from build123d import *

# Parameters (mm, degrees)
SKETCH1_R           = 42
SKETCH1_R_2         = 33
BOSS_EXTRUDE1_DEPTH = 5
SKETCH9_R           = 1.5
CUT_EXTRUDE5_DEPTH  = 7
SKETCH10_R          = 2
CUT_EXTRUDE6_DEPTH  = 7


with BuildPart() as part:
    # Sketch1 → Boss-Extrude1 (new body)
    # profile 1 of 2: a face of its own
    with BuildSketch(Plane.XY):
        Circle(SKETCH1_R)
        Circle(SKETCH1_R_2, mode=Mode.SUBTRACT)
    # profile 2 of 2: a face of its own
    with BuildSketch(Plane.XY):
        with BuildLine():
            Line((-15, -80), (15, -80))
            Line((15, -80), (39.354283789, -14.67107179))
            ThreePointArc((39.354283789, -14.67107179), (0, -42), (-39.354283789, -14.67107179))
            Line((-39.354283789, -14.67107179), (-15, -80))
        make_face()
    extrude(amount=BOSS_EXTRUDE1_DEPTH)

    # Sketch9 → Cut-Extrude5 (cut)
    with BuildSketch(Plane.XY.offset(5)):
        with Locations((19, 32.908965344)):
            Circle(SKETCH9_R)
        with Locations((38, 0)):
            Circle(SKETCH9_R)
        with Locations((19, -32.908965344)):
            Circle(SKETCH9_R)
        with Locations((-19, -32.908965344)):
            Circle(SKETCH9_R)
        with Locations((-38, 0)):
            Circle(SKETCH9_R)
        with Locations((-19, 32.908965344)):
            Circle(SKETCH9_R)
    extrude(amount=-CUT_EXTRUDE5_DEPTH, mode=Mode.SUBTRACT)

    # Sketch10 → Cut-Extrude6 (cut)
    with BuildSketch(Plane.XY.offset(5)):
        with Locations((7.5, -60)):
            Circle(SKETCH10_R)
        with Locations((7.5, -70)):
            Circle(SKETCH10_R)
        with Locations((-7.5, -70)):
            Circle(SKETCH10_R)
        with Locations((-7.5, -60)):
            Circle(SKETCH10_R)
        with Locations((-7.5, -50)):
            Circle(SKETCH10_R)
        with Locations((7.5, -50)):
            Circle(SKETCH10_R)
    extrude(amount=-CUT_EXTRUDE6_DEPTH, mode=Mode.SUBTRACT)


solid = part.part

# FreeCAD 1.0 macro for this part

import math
import FreeCAD as App
import Part
import Sketcher

V = App.Vector
Q = App.Units.Quantity

doc = App.newDocument("Part")
body = doc.addObject("PartDesign::Body", "Body")

# Sketch on XY plane
sketch1 = body.newObject("Sketcher::SketchObject", "Sketch")
sketch1.AttachmentSupport = (doc.getObject("XY_Plane"), [""])
sketch1.MapMode = "FlatFace"
sketch1.addGeometry([
    Part.LineSegment(V(-39, -15, 0), V(-15, -80, 0)),  # 0
    Part.LineSegment(V(-15, -80, 0), V(15, -80, 0)),  # 1
    Part.LineSegment(V(15, -80, 0), V(39, -15, 0)),  # 2
    Part.ArcOfCircle(Part.Circle(V(0, 0, 0), V(0, 0, 1), 42), math.radians(-20), math.radians(200)),  # 3
    Part.Circle(V(0, 0, 0), V(0, 0, 1), 33),  # 4
], False)
sketch1.addConstraint([
    Sketcher.Constraint("Coincident", 0, 2, 1, 1),
    Sketcher.Constraint("Coincident", 1, 2, 2, 1),
    Sketcher.Constraint("Tangent", 2, 2, 3, 1),
    Sketcher.Constraint("Tangent", 3, 2, 0, 1),
    Sketcher.Constraint("Horizontal", 1),
    Sketcher.Constraint("Coincident", 3, 3, -1, 1),
    Sketcher.Constraint("Coincident", 4, 3, -1, 1),
    Sketcher.Constraint("Horizontal", 2, 2, 3, 2),
    Sketcher.Constraint("Diameter", 4, Q("66 mm")),
    Sketcher.Constraint("Radius", 3, Q("42 mm")),
    Sketcher.Constraint("DistanceX", 1, 1, 1, 2, Q("30 mm")),
    Sketcher.Constraint("DistanceY", 0, 2, -1, 1, Q("80 mm")),
])
pad1 = body.newObject("PartDesign::Pad", "Pad")
pad1.Profile = sketch1
pad1.Length = 5

# Sketch on XY plane
sketch2 = body.newObject("Sketcher::SketchObject", "Sketch001")
sketch2.AttachmentSupport = (doc.getObject("XY_Plane"), [""])
sketch2.MapMode = "FlatFace"
sketch2.AttachmentOffset = App.Placement(V(0, 0, 5), App.Rotation())
sketch2.addGeometry([
    Part.Circle(V(19, 32.9, 0), V(0, 0, 1), 1.5),  # 0
    Part.Circle(V(38, 0, 0), V(0, 0, 1), 1.5),  # 1
    Part.Circle(V(19, -32.9, 0), V(0, 0, 1), 1.5),  # 2
    Part.Circle(V(-19, -32.9, 0), V(0, 0, 1), 1.5),  # 3
    Part.Circle(V(-38, 0, 0), V(0, 0, 1), 1.5),  # 4
    Part.Circle(V(-19, 32.9, 0), V(0, 0, 1), 1.5),  # 5
], False)
sketch2.addConstraint([
    Sketcher.Constraint("Equal", 0, 1),
    Sketcher.Constraint("Equal", 1, 2),
    Sketcher.Constraint("Equal", 2, 3),
    Sketcher.Constraint("Equal", 3, 4),
    Sketcher.Constraint("Equal", 4, 5),
    Sketcher.Constraint("Symmetric", 0, 3, 3, 3, -1, 1),
    Sketcher.Constraint("Symmetric", 1, 3, 4, 3, -1, 1),
    Sketcher.Constraint("Symmetric", 2, 3, 5, 3, -1, 1),
    Sketcher.Constraint("Symmetric", 2, 3, 3, 3, -2),
    Sketcher.Constraint("PointOnObject", 1, 3, -1),
    Sketcher.Constraint("Diameter", 0, Q("3 mm")),
    Sketcher.Constraint("DistanceX", -1, 1, 0, 3, Q("19 mm")),
    Sketcher.Constraint("DistanceX", -1, 1, 1, 3, Q("38 mm")),
    Sketcher.Constraint("DistanceY", 2, 3, 0, 3, Q("65.817931 mm")),
])
pocket1 = body.newObject("PartDesign::Pocket", "Pocket")
pocket1.Profile = sketch2
pocket1.Length = 7

# Sketch on XY plane
sketch3 = body.newObject("Sketcher::SketchObject", "Sketch002")
sketch3.AttachmentSupport = (doc.getObject("XY_Plane"), [""])
sketch3.MapMode = "FlatFace"
sketch3.AttachmentOffset = App.Placement(V(0, 0, 5), App.Rotation())
sketch3.addGeometry([
    Part.Circle(V(7.5, -60, 0), V(0, 0, 1), 2),  # 0
    Part.Circle(V(7.5, -70, 0), V(0, 0, 1), 2),  # 1
    Part.Circle(V(-7.5, -70, 0), V(0, 0, 1), 2),  # 2
    Part.Circle(V(-7.5, -60, 0), V(0, 0, 1), 2),  # 3
    Part.Circle(V(-7.5, -50, 0), V(0, 0, 1), 2),  # 4
    Part.Circle(V(7.5, -50, 0), V(0, 0, 1), 2),  # 5
], False)
sketch3.addConstraint([
    Sketcher.Constraint("Equal", 0, 1),
    Sketcher.Constraint("Equal", 1, 2),
    Sketcher.Constraint("Equal", 2, 3),
    Sketcher.Constraint("Equal", 3, 4),
    Sketcher.Constraint("Equal", 4, 5),
    Sketcher.Constraint("Symmetric", 1, 3, 2, 3, -2),
    Sketcher.Constraint("Symmetric", 0, 3, 3, 3, -2),
    Sketcher.Constraint("Symmetric", 4, 3, 5, 3, -2),
    Sketcher.Constraint("Vertical", 0, 3, 1, 3),
    Sketcher.Constraint("Vertical", 3, 3, 4, 3),
    Sketcher.Constraint("Diameter", 0, Q("4 mm")),
    Sketcher.Constraint("DistanceY", 0, 3, -1, 1, Q("60 mm")),
    Sketcher.Constraint("DistanceY", 1, 3, -1, 1, Q("70 mm")),
    Sketcher.Constraint("DistanceY", 4, 3, -1, 1, Q("50 mm")),
    Sketcher.Constraint("DistanceX", 2, 3, 1, 3, Q("15 mm")),
])
pocket2 = body.newObject("PartDesign::Pocket", "Pocket001")
pocket2.Profile = sketch3
pocket2.Length = 7

doc.recompute()
